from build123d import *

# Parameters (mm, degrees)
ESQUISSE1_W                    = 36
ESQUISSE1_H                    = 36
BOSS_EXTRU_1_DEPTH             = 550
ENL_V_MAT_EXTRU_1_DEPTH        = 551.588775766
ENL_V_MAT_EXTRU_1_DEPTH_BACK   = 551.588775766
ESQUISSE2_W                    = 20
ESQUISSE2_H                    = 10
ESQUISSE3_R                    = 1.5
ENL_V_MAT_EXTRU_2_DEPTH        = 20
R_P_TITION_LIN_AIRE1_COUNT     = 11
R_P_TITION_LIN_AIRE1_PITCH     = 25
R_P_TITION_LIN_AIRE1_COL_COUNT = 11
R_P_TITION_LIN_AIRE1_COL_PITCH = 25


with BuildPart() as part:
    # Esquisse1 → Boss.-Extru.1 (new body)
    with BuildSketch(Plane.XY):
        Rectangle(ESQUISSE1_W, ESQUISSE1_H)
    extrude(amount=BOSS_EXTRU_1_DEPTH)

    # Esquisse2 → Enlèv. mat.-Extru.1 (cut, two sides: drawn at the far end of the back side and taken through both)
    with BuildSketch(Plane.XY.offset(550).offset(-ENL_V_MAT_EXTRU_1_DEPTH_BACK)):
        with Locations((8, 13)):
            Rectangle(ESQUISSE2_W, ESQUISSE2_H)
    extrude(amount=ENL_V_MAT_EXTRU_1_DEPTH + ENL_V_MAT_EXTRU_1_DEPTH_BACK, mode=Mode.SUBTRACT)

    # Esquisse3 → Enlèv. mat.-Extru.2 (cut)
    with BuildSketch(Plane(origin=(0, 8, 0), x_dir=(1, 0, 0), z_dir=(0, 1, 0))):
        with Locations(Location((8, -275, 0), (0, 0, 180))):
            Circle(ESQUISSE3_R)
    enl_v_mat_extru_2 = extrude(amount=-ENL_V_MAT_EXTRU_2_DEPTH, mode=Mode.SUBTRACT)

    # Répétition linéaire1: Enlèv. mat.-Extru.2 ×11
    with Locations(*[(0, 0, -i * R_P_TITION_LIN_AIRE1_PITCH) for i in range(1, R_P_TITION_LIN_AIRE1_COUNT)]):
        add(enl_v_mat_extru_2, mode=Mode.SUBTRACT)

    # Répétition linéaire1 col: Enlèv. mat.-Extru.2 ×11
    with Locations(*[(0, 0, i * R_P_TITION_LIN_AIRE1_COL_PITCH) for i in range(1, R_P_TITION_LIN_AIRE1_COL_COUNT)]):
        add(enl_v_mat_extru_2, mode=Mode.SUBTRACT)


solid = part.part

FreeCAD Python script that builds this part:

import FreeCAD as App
import Part
import Sketcher
from FreeCAD import Vector

doc = App.newDocument("Part")
body = doc.addObject("PartDesign::Body", "Body")

sketch1 = body.newObject("Sketcher::SketchObject", "Sketch")
sketch1.AttachmentSupport = (doc.getObject("XY_Plane"), [""])
sketch1.MapMode = "FlatFace"
sketch1.addGeometry([
    Part.LineSegment(Vector(-18, 18, 0), Vector(-18, -18, 0)),
    Part.LineSegment(Vector(-18, -18, 0), Vector(18, -18, 0)),
    Part.LineSegment(Vector(18, -18, 0), Vector(18, 18, 0)),
    Part.LineSegment(Vector(18, 18, 0), Vector(-18, 18, 0)),
], False)
sketch1.addConstraint([
    Sketcher.Constraint("Coincident", 0, 2, 1, 1),
    Sketcher.Constraint("Coincident", 1, 2, 2, 1),
    Sketcher.Constraint("Coincident", 2, 2, 3, 1),
    Sketcher.Constraint("Coincident", 3, 2, 0, 1),
    Sketcher.Constraint("Vertical", 0),
    Sketcher.Constraint("Horizontal", 1),
    Sketcher.Constraint("Vertical", 2),
    Sketcher.Constraint("Horizontal", 3),
    Sketcher.Constraint("Symmetric", 0, 2, 2, 2, -1, 1),
    Sketcher.Constraint("Equal", 3, 0),
    Sketcher.Constraint("DistanceX", 1, 1, 1, 2, 36.0),
])
pad1 = body.newObject("PartDesign::Pad", "Pad")
pad1.Profile = sketch1
pad1.Length = 550

sketch2 = body.newObject("Sketcher::SketchObject", "Sketch001")
sketch2.AttachmentSupport = (doc.getObject("XY_Plane"), [""])
sketch2.MapMode = "FlatFace"
sketch2.AttachmentOffset = App.Placement(Vector(0, 0, 550), App.Rotation())
sketch2.addGeometry([
    Part.LineSegment(Vector(-2, 18, 0), Vector(-2, 8, 0)),
    Part.LineSegment(Vector(-2, 8, 0), Vector(18, 8, 0)),
    Part.LineSegment(Vector(18, 8, 0), Vector(18, 18, 0)),
    Part.LineSegment(Vector(18, 18, 0), Vector(-2, 18, 0)),
], False)
sketch2.addConstraint([
    Sketcher.Constraint("Coincident", 0, 2, 1, 1),
    Sketcher.Constraint("Coincident", 1, 2, 2, 1),
    Sketcher.Constraint("Coincident", 2, 2, 3, 1),
    Sketcher.Constraint("Coincident", 3, 2, 0, 1),
    Sketcher.Constraint("Vertical", 0),
    Sketcher.Constraint("Horizontal", 1),
    Sketcher.Constraint("Vertical", 2),
    Sketcher.Constraint("Horizontal", 3),
    Sketcher.Constraint("DistanceX", 1, 1, 1, 2, 20.0),
    Sketcher.Constraint("DistanceY", 0, 2, 0, 1, 10.0),
    Sketcher.Constraint("DistanceX", 0, 2, -1, 1, 2.0),
    Sketcher.Constraint("DistanceY", -1, 1, 0, 2, 8.0),
])
pocket1 = body.newObject("PartDesign::Pocket", "Pocket")
pocket1.Profile = sketch2
pocket1.Type = "ThroughAll"
pocket1.Midplane = True

sketch3 = body.newObject("Sketcher::SketchObject", "Sketch002")
sketch3.AttachmentSupport = (doc.getObject("XZ_Plane"), [""])
sketch3.MapMode = "FlatFace"
sketch3.AttachmentOffset = App.Placement(Vector(0, 0, -8), App.Rotation())
sketch3.addGeometry(Part.Circle(Vector(8, 275, 0), Vector(0, 0, 1), 1.5), False)
sketch3.addConstraint([
    Sketcher.Constraint("Diameter", 0, 3.0),
    Sketcher.Constraint("DistanceX", -1, 1, 0, 3, 8.0),
    Sketcher.Constraint("DistanceY", -1, 1, 0, 3, 275.0),
])
pocket2 = body.newObject("PartDesign::Pocket", "Pocket001")
pocket2.Profile = sketch3
pocket2.Length = 20
pocket2.Reversed = True
doc.recompute()

linearpattern = body.newObject("PartDesign::LinearPattern", "LinearPattern")
linearpattern.Originals = [pocket2]
linearpattern.Direction = (doc.getObject("Z_Axis"), [""])
linearpattern.Mode = "offset"
linearpattern.Offset = 25
linearpattern.Occurrences = 11
linearpattern.Reversed = True
body.Tip = linearpattern
doc.recompute()

linearpattern2 = body.newObject("PartDesign::LinearPattern", "LinearPattern001")
linearpattern2.Originals = [pocket2]
linearpattern2.Direction = (doc.getObject("Z_Axis"), [""])
linearpattern2.Mode = "offset"
linearpattern2.Offset = 25
linearpattern2.Occurrences = 11
body.Tip = linearpattern2

doc.recompute()
